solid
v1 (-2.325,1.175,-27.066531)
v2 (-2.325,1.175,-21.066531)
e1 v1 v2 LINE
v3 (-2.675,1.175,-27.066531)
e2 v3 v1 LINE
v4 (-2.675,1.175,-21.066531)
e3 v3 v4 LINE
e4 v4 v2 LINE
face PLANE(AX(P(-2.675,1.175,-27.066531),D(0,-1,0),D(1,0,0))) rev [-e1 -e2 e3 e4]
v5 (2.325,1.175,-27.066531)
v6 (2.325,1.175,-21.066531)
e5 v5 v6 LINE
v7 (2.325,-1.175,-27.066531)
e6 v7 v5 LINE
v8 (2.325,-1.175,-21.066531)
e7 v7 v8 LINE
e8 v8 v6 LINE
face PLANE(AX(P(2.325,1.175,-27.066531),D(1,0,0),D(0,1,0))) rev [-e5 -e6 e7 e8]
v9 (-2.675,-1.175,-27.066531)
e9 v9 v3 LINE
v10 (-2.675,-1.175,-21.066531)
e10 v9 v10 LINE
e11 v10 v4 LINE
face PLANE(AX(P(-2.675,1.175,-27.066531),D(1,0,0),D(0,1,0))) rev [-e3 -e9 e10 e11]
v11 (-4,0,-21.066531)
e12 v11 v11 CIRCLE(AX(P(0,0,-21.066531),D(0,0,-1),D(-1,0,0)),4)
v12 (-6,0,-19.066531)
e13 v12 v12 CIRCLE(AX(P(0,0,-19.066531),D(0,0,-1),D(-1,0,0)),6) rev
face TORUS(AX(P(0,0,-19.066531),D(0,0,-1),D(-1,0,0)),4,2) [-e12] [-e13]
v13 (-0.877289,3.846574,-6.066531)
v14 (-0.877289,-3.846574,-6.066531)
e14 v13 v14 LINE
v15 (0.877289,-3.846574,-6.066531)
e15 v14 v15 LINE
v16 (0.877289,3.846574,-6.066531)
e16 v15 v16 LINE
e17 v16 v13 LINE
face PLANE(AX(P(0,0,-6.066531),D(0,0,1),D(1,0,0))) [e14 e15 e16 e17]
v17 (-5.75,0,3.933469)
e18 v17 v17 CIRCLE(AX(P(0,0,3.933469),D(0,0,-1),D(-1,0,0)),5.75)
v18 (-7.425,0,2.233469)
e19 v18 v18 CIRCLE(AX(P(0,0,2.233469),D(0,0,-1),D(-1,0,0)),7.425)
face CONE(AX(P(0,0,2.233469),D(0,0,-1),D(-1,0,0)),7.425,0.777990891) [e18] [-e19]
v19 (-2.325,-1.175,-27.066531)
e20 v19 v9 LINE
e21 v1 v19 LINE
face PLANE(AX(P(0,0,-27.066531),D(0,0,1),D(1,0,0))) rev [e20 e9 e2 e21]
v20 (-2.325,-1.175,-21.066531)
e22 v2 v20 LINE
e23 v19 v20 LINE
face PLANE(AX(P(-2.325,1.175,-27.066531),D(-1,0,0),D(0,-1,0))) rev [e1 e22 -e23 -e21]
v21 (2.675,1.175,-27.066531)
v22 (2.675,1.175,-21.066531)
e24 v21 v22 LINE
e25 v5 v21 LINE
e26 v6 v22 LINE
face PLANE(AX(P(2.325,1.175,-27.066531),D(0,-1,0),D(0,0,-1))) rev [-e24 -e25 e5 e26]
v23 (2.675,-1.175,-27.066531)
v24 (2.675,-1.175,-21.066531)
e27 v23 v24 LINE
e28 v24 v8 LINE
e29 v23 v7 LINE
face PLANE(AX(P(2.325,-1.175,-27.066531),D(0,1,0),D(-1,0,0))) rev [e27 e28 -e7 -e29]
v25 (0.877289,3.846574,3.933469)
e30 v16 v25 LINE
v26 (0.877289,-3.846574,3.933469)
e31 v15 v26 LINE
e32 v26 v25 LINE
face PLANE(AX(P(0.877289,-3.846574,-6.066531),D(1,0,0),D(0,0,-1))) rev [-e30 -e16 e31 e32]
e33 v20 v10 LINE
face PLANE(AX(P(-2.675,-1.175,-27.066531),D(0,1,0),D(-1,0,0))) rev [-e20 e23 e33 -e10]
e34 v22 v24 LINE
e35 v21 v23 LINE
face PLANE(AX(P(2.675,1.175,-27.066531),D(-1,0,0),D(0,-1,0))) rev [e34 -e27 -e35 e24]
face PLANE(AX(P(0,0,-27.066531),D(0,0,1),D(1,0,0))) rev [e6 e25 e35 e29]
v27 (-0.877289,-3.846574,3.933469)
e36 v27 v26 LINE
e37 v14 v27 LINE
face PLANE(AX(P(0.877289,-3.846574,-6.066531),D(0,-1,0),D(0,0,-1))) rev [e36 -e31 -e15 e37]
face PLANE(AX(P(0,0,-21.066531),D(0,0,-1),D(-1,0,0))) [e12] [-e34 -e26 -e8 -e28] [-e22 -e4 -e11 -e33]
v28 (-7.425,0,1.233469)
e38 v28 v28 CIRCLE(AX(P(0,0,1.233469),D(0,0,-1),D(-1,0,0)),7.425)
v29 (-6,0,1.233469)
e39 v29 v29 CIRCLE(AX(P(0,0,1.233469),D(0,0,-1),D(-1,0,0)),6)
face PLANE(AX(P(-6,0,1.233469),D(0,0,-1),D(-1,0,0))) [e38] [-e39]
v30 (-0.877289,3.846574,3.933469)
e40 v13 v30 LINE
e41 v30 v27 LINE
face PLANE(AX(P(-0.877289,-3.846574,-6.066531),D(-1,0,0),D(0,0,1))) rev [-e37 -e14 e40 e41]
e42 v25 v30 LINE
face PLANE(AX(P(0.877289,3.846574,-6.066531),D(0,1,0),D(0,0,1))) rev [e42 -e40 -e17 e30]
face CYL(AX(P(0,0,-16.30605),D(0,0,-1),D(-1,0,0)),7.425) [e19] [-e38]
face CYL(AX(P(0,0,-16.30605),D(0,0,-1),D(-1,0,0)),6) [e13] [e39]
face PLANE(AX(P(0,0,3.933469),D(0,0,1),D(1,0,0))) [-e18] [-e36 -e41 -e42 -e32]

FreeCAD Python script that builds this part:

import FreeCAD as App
import Part
import Sketcher

V = App.Vector


def edges_at(feature, points):
    """Names of the edges that pass closest to the given points."""
    edges = feature.Shape.Edges
    near = lambda p: min(range(len(edges)), key=lambda i: edges[i].distToShape(Part.Vertex(*p))[0])
    return sorted({f"Edge{near(p) + 1}" for p in points})


def add_polygon(sketch, points):
    """Adds a closed chain of lines whose ends are joined by coincident constraints."""
    first, n = sketch.GeometryCount, len(points)
    for a, b in zip(points, points[1:] + points[:1]):
        sketch.addGeometry(Part.LineSegment(App.Vector(*a, 0), App.Vector(*b, 0)), False)
    for i in range(n):
        sketch.addConstraint(Sketcher.Constraint("Coincident", first + i, 2, first + (i + 1) % n, 1))

doc = App.newDocument("Part")
body = doc.addObject("PartDesign::Body", "Body")

# Sketch on XZ plane
sketch1 = doc.addObject("Sketcher::SketchObject", "Sketch")
body.addObject(sketch1)
sketch1.AttachmentSupport = (doc.XZ_Plane, [""])
sketch1.MapMode = "FlatFace"
add_polygon(sketch1, [(-7.4, 2.2), (-5.8, 3.9), (0, 3.9), (0, -21.1), (-6, -21.1), (-6, 1.2), (-7.4, 1.2)])  # lines 0-6
sketch1.addConstraint(Sketcher.Constraint("Horizontal", 1))
sketch1.addConstraint(Sketcher.Constraint("Vertical", 2))
sketch1.addConstraint(Sketcher.Constraint("Horizontal", 3))
sketch1.addConstraint(Sketcher.Constraint("Vertical", 4))
sketch1.addConstraint(Sketcher.Constraint("Horizontal", 5))
sketch1.addConstraint(Sketcher.Constraint("Vertical", 6))
sketch1.addConstraint(Sketcher.Constraint("PointOnObject", 1, 2, -2))
sketch1.addConstraint(Sketcher.Constraint("DistanceX", 3, 2, 3, 1, 6.0))
sketch1.addConstraint(Sketcher.Constraint("DistanceY", 2, 2, 2, 1, 25.0))
sketch1.addConstraint(Sketcher.Constraint("DistanceY", 6, 1, 6, 2, 1.0))
sketch1.addConstraint(Sketcher.Constraint("DistanceY", 4, 1, 4, 2, 22.3))
sketch1.addConstraint(Sketcher.Constraint("DistanceX", 1, 1, 1, 2, 5.75))
sketch1.addConstraint(Sketcher.Constraint("DistanceX", 5, 2, 5, 1, 1.425))
sketch1.addConstraint(Sketcher.Constraint("DistanceY", -1, 1, 0, 2, 3.933469))
revolution = doc.addObject("PartDesign::Revolution", "Revolution")
body.addObject(revolution)
revolution.Profile = sketch1
revolution.ReferenceAxis = (sketch1, ["V_Axis"])
revolution.Angle = 360

# Sketch on XY plane
sketch2 = doc.addObject("Sketcher::SketchObject", "Sketch001")
body.addObject(sketch2)
sketch2.AttachmentSupport = (doc.XY_Plane, [""])
sketch2.MapMode = "FlatFace"
sketch2.AttachmentOffset = App.Placement(V(0, 0, 3.933469), App.Rotation())
add_polygon(sketch2, [(-0.9, 3.8), (-0.9, -3.8), (0.9, -3.8), (0.9, 3.8)])  # lines 0-3
sketch2.addConstraint(Sketcher.Constraint("Vertical", 0))
sketch2.addConstraint(Sketcher.Constraint("Horizontal", 1))
sketch2.addConstraint(Sketcher.Constraint("Vertical", 2))
sketch2.addConstraint(Sketcher.Constraint("Horizontal", 3))
sketch2.addConstraint(Sketcher.Constraint("Symmetric", 0, 2, 2, 2, -1, 1))
sketch2.addConstraint(Sketcher.Constraint("DistanceY", 0, 2, 0, 1, 7.693148))
sketch2.addConstraint(Sketcher.Constraint("DistanceX", 1, 1, 1, 2, 1.754578))
pocket1 = doc.addObject("PartDesign::Pocket", "Pocket")
body.addObject(pocket1)
pocket1.Profile = sketch2
pocket1.Length = 10

# Sketch on XY plane
sketch3 = doc.addObject("Sketcher::SketchObject", "Sketch002")
body.addObject(sketch3)
sketch3.AttachmentSupport = (doc.XY_Plane, [""])
sketch3.MapMode = "FlatFace"
sketch3.AttachmentOffset = App.Placement(V(0, 0, -21.066531), App.Rotation())
add_polygon(sketch3, [(2.67, 1.18), (2.67, -1.18), (2.33, -1.18), (2.33, 1.18)])  # lines 0-3
add_polygon(sketch3, [(-2.33, 1.18), (-2.33, -1.18), (-2.67, -1.18), (-2.67, 1.18)])  # lines 4-7
sketch3.addConstraint(Sketcher.Constraint("Vertical", 0))
sketch3.addConstraint(Sketcher.Constraint("Horizontal", 1))
sketch3.addConstraint(Sketcher.Constraint("Vertical", 2))
sketch3.addConstraint(Sketcher.Constraint("Horizontal", 3))
sketch3.addConstraint(Sketcher.Constraint("Vertical", 4))
sketch3.addConstraint(Sketcher.Constraint("Horizontal", 5))
sketch3.addConstraint(Sketcher.Constraint("Vertical", 6))
sketch3.addConstraint(Sketcher.Constraint("Horizontal", 7))
sketch3.addConstraint(Sketcher.Constraint("Symmetric", 2, 2, 4, 2, -1, 1))
sketch3.addConstraint(Sketcher.Constraint("Symmetric", 0, 2, 6, 2, -1, 1))
sketch3.addConstraint(Sketcher.Constraint("Horizontal", 1, 2, 4, 2))
sketch3.addConstraint(Sketcher.Constraint("DistanceX", 4, 2, 0, 2, 5.0))
sketch3.addConstraint(Sketcher.Constraint("DistanceX", 1, 2, 1, 1, 0.35))
sketch3.addConstraint(Sketcher.Constraint("DistanceY", 0, 2, 0, 1, 2.35))
pad1 = doc.addObject("PartDesign::Pad", "Pad")
body.addObject(pad1)
pad1.Profile = sketch3
pad1.Length = 6
pad1.Reversed = True
doc.recompute()

fillet = doc.addObject("PartDesign::Fillet", "Fillet")
body.addObject(fillet)
fillet.Base = (pad1, edges_at(pad1, [(6, 0, -21.067)]))
fillet.Radius = 2

doc.recompute()
